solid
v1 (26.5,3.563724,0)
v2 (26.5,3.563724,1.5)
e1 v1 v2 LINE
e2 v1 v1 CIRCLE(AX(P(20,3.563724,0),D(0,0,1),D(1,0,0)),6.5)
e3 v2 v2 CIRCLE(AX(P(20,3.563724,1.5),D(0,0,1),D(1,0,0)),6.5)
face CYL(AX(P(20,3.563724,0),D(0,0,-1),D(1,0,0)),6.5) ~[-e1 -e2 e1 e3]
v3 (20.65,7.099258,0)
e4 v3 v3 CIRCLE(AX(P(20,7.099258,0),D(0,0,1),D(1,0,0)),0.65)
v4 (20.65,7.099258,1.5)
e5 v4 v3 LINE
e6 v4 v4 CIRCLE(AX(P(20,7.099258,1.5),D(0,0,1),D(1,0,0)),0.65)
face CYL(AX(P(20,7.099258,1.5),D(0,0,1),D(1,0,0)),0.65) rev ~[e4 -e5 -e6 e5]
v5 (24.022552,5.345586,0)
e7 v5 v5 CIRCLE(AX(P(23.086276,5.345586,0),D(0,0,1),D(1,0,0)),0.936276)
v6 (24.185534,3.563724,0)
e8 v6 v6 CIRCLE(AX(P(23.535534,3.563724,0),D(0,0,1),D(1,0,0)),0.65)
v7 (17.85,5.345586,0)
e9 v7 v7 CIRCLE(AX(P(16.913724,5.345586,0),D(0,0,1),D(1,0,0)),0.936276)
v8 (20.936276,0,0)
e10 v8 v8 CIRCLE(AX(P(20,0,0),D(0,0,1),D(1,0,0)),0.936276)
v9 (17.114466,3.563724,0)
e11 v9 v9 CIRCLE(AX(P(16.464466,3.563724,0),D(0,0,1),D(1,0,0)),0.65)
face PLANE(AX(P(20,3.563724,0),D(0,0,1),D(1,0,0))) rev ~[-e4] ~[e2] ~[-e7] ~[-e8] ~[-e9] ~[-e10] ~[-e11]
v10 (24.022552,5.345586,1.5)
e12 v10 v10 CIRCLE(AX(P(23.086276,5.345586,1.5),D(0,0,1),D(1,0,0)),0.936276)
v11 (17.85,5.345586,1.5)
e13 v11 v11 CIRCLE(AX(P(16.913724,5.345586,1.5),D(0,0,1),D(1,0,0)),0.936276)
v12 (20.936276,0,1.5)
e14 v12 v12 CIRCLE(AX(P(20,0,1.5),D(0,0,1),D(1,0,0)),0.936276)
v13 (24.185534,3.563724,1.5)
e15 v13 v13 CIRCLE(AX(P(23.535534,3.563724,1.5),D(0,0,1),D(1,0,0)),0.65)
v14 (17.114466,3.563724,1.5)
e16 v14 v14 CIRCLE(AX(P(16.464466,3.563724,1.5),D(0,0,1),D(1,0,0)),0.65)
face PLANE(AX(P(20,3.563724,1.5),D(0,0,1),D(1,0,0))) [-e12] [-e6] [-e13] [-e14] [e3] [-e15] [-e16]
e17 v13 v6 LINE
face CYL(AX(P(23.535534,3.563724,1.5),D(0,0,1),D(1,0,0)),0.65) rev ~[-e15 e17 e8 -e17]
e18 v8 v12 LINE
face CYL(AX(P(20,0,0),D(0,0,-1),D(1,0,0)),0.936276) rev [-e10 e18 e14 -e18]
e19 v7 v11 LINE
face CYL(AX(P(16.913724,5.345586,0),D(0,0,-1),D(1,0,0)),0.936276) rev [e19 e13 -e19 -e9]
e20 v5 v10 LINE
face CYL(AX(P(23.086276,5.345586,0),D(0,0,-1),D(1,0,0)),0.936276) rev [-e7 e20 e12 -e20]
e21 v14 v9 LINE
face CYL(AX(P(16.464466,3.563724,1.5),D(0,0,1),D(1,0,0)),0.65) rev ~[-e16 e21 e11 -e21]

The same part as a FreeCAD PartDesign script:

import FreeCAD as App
import Part
import Sketcher

V = App.Vector
Q = App.Units.Quantity

doc = App.newDocument("Part")
body = doc.addObject("PartDesign::Body", "Body")

sketch1 = doc.addObject("Sketcher::SketchObject", "Sketch")
body.addObject(sketch1)
sketch1.AttachmentSupport = (doc.XY_Plane, [""])
sketch1.MapMode = "FlatFace"
sketch1.addGeometry(Part.Circle(V(0, 3.6, 0), V(0, 0, 1), 6.5), False)
sketch1.addGeometry(Part.Circle(V(0, 0, 0), V(0, 0, 1), 0.9), False)
sketch1.addGeometry(Part.Circle(V(-3.1, 5.3, 0), V(0, 0, 1), 0.9), False)
sketch1.addGeometry(Part.Circle(V(3.1, 5.3, 0), V(0, 0, 1), 0.9), False)
sketch1.addConstraint(Sketcher.Constraint("Coincident", 1, 3, -1, 1))
sketch1.addConstraint(Sketcher.Constraint("Equal", 1, 2))
sketch1.addConstraint(Sketcher.Constraint("Equal", 2, 3))
sketch1.addConstraint(Sketcher.Constraint("Symmetric", 2, 3, 3, 3, -2))
sketch1.addConstraint(Sketcher.Constraint("PointOnObject", 0, 3, -2))
sketch1.addConstraint(Sketcher.Constraint("Diameter", 0, Q("13 mm")))
sketch1.addConstraint(Sketcher.Constraint("Diameter", 1, Q("1.872552 mm")))
sketch1.addConstraint(Sketcher.Constraint("DistanceY", 0, 3, 2, 3, Q("1.781862 mm")))
sketch1.addConstraint(Sketcher.Constraint("DistanceX", 2, 3, 3, 3, Q("6.172552 mm")))
sketch1.addConstraint(Sketcher.Constraint("DistanceY", -1, 1, 0, 3, Q("3.563724 mm")))
pad1 = doc.addObject("PartDesign::Pad", "Pad")
body.addObject(pad1)
pad1.Profile = sketch1
pad1.Length = 1.5

sketch2 = doc.addObject("Sketcher::SketchObject", "Sketch001")
body.addObject(sketch2)
sketch2.AttachmentSupport = (doc.XY_Plane, [""])
sketch2.MapMode = "FlatFace"
sketch2.AttachmentOffset = App.Placement(V(0, 0, 1.5), App.Rotation())
sketch2.addGeometry(Part.Circle(V(-3.5, 3.6, 0), V(0, 0, 1), 0.7), False)
sketch2.addGeometry(Part.Circle(V(0, 7.1, 0), V(0, 0, 1), 0.7), False)
sketch2.addGeometry(Part.Circle(V(3.5, 3.6, 0), V(0, 0, 1), 0.7), False)
sketch2.addGeometry(Part.Circle(V(0, 0, 0), V(0, 0, 1), 0.7), False)
sketch2.addConstraint(Sketcher.Constraint("Coincident", 3, 3, -1, 1))
sketch2.addConstraint(Sketcher.Constraint("Equal", 0, 1))
sketch2.addConstraint(Sketcher.Constraint("Equal", 1, 2))
sketch2.addConstraint(Sketcher.Constraint("Equal", 2, 3))
sketch2.addConstraint(Sketcher.Constraint("Symmetric", 0, 3, 2, 3, -2))
sketch2.addConstraint(Sketcher.Constraint("PointOnObject", 1, 3, -2))
sketch2.addConstraint(Sketcher.Constraint("Diameter", 0, Q("1.3 mm")))
sketch2.addConstraint(Sketcher.Constraint("DistanceX", 0, 3, 2, 3, Q("7.071068 mm")))
sketch2.addConstraint(Sketcher.Constraint("DistanceY", -1, 1, 0, 3, Q("3.563724 mm")))
sketch2.addConstraint(Sketcher.Constraint("DistanceY", -1, 1, 1, 3, Q("7.099258 mm")))
pocket1 = doc.addObject("PartDesign::Pocket", "Pocket")
body.addObject(pocket1)
pocket1.Profile = sketch2
pocket1.Length = 5
body2 = doc.addObject("PartDesign::Body", "Body001")
doc.recompute()

body.Placement = App.Placement(V(20, 0, 0), App.Rotation(V(0, 0, 1), 0))
boolean = doc.addObject("PartDesign::Boolean", "Boolean")
body2.addObject(boolean)
boolean.Type = "Fuse"
boolean.addObjects([body])

doc.recompute()
